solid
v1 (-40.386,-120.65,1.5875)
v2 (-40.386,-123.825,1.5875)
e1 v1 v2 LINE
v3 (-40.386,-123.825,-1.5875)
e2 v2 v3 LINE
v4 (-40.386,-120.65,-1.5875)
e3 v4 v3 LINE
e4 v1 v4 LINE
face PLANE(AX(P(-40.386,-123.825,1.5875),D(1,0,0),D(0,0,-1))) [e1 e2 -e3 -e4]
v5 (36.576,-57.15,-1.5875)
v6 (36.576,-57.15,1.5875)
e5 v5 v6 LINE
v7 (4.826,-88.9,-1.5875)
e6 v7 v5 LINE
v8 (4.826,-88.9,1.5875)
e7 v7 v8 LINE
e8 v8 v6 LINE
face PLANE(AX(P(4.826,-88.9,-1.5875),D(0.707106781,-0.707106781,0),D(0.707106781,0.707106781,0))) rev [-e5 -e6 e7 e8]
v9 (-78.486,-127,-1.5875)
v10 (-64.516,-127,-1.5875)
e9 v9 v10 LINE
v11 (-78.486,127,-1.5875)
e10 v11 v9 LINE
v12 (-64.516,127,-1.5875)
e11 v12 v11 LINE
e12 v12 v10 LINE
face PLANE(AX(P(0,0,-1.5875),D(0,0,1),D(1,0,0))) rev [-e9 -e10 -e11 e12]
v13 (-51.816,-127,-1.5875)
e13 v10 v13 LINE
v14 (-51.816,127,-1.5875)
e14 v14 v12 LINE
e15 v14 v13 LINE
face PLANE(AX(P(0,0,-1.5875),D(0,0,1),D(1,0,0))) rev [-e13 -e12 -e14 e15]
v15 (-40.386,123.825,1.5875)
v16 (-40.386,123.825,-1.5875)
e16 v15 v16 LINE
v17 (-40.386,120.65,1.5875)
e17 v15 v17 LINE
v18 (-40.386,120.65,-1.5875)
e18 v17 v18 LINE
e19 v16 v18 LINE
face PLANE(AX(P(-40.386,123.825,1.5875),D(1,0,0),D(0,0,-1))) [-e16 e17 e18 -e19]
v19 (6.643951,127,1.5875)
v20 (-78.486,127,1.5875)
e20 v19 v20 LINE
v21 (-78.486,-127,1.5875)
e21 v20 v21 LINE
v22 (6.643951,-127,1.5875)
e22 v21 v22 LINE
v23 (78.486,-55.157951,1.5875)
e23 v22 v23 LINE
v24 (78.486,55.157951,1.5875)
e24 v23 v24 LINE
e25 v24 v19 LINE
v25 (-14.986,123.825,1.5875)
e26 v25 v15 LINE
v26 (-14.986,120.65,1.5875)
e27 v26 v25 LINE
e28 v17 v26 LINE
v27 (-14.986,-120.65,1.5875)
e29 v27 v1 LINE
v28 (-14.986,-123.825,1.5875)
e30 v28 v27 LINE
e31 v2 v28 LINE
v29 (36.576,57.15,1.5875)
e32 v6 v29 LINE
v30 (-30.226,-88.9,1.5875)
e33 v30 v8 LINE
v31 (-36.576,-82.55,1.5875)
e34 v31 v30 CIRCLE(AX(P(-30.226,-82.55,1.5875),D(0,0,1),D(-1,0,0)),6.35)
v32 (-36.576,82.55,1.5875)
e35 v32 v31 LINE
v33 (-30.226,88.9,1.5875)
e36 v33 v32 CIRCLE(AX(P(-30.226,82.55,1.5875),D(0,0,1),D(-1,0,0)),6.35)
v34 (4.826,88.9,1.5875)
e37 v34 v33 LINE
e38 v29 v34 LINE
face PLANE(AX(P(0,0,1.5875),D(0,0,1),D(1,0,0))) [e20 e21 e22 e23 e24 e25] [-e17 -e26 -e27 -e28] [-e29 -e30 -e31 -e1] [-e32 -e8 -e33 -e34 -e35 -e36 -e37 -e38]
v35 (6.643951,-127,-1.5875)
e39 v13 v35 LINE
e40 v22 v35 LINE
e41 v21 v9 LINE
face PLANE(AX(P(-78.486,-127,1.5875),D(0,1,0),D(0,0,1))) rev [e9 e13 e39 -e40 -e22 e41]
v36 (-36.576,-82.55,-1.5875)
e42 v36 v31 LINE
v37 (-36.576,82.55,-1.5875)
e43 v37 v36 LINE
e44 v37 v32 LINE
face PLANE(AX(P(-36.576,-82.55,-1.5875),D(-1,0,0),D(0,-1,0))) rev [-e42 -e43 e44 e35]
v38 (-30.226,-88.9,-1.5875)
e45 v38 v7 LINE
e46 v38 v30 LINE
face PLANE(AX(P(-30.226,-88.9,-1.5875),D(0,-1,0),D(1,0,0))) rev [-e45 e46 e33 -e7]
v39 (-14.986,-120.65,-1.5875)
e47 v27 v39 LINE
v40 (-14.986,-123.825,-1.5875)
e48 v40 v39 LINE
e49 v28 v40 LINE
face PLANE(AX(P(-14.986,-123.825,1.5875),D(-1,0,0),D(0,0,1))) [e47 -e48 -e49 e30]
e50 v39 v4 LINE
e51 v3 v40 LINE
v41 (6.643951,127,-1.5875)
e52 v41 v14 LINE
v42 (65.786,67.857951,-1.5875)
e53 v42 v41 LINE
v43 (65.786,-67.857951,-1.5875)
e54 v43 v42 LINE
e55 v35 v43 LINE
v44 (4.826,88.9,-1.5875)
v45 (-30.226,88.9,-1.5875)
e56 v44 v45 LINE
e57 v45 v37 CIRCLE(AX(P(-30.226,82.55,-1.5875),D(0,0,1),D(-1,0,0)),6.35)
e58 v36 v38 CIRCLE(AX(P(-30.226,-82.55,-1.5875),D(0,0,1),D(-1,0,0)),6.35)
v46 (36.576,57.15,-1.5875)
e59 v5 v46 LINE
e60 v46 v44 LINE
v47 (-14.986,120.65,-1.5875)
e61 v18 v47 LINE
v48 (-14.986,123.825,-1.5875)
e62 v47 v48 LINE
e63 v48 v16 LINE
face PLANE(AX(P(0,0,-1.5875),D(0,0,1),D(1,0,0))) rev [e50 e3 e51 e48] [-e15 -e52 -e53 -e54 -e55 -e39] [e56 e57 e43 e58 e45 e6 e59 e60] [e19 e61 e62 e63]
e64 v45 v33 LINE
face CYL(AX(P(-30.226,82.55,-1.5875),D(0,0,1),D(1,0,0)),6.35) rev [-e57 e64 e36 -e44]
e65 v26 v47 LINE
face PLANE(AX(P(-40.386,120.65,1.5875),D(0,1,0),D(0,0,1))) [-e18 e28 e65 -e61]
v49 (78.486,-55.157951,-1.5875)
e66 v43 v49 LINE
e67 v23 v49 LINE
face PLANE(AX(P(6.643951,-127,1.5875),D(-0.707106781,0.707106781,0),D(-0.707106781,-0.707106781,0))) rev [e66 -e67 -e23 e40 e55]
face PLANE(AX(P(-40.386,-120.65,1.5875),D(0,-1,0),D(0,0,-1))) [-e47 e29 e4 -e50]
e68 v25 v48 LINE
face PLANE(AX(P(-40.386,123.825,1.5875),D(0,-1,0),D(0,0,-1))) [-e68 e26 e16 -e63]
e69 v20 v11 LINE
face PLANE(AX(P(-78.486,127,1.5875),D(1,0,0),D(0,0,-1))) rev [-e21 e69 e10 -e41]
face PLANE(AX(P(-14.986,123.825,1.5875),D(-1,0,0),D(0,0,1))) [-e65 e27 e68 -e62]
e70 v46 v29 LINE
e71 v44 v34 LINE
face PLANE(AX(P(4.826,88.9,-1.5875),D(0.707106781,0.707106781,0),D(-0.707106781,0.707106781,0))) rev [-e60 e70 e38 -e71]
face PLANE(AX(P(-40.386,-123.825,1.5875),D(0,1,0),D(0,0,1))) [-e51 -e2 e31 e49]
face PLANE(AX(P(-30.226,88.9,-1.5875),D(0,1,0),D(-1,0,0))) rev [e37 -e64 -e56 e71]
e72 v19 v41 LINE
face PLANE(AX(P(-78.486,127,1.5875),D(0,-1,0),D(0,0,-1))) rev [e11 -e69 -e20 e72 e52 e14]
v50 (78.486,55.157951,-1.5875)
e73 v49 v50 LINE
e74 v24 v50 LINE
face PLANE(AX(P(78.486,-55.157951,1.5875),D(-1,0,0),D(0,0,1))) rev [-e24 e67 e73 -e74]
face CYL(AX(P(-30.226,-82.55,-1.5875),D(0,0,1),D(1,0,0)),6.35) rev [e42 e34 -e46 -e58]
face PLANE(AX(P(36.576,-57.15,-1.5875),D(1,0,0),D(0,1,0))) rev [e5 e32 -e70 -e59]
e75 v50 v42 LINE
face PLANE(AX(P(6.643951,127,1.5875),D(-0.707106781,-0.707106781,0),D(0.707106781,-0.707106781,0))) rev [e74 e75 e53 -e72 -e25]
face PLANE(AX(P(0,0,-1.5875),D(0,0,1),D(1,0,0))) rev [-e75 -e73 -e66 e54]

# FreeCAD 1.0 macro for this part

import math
import FreeCAD as App
import Part
import Sketcher
Q = App.Units.Quantity

doc = App.newDocument("Part")
body = doc.addObject("PartDesign::Body", "Body")

# Sketch on XY plane
sketch1 = body.newObject("Sketcher::SketchObject", "Sketch")
sketch1.AttachmentSupport = (doc.getObject("XY_Plane"), [""])
sketch1.MapMode = "FlatFace"
sketch1.addGeometry(Part.LineSegment(App.Vector(6.6, 127, 0), App.Vector(-78.5, 127, 0)), False)
sketch1.addGeometry(Part.LineSegment(App.Vector(-78.5, 127, 0), App.Vector(-78.5, -127, 0)), False)
sketch1.addGeometry(Part.LineSegment(App.Vector(-78.5, -127, 0), App.Vector(6.6, -127, 0)), False)
sketch1.addGeometry(Part.LineSegment(App.Vector(6.6, -127, 0), App.Vector(78.5, -55.2, 0)), False)
sketch1.addGeometry(Part.LineSegment(App.Vector(78.5, -55.2, 0), App.Vector(78.5, 55.2, 0)), False)
sketch1.addGeometry(Part.LineSegment(App.Vector(78.5, 55.2, 0), App.Vector(6.6, 127, 0)), False)
sketch1.addGeometry(Part.LineSegment(App.Vector(-40.4, -123.8, 0), App.Vector(-40.4, -120.7, 0)), False)
sketch1.addGeometry(Part.LineSegment(App.Vector(-40.4, -120.7, 0), App.Vector(-15, -120.7, 0)), False)
sketch1.addGeometry(Part.LineSegment(App.Vector(-15, -120.7, 0), App.Vector(-15, -123.8, 0)), False)
sketch1.addGeometry(Part.LineSegment(App.Vector(-15, -123.8, 0), App.Vector(-40.4, -123.8, 0)), False)
sketch1.addGeometry(Part.LineSegment(App.Vector(-40.4, 120.7, 0), App.Vector(-40.4, 123.8, 0)), False)
sketch1.addGeometry(Part.LineSegment(App.Vector(-40.4, 123.8, 0), App.Vector(-15, 123.8, 0)), False)
sketch1.addGeometry(Part.LineSegment(App.Vector(-15, 123.8, 0), App.Vector(-15, 120.7, 0)), False)
sketch1.addGeometry(Part.LineSegment(App.Vector(-15, 120.7, 0), App.Vector(-40.4, 120.7, 0)), False)
sketch1.addConstraint(Sketcher.Constraint("Coincident", 0, 2, 1, 1))
sketch1.addConstraint(Sketcher.Constraint("Coincident", 1, 2, 2, 1))
sketch1.addConstraint(Sketcher.Constraint("Coincident", 2, 2, 3, 1))
sketch1.addConstraint(Sketcher.Constraint("Coincident", 3, 2, 4, 1))
sketch1.addConstraint(Sketcher.Constraint("Coincident", 4, 2, 5, 1))
sketch1.addConstraint(Sketcher.Constraint("Coincident", 5, 2, 0, 1))
sketch1.addConstraint(Sketcher.Constraint("Coincident", 6, 2, 7, 1))
sketch1.addConstraint(Sketcher.Constraint("Coincident", 7, 2, 8, 1))
sketch1.addConstraint(Sketcher.Constraint("Coincident", 8, 2, 9, 1))
sketch1.addConstraint(Sketcher.Constraint("Coincident", 9, 2, 6, 1))
sketch1.addConstraint(Sketcher.Constraint("Coincident", 10, 2, 11, 1))
sketch1.addConstraint(Sketcher.Constraint("Coincident", 11, 2, 12, 1))
sketch1.addConstraint(Sketcher.Constraint("Coincident", 12, 2, 13, 1))
sketch1.addConstraint(Sketcher.Constraint("Coincident", 13, 2, 10, 1))
sketch1.addConstraint(Sketcher.Constraint("Horizontal", 0))
sketch1.addConstraint(Sketcher.Constraint("Vertical", 1))
sketch1.addConstraint(Sketcher.Constraint("Horizontal", 2))
sketch1.addConstraint(Sketcher.Constraint("Vertical", 4))
sketch1.addConstraint(Sketcher.Constraint("Vertical", 6))
sketch1.addConstraint(Sketcher.Constraint("Horizontal", 7))
sketch1.addConstraint(Sketcher.Constraint("Vertical", 8))
sketch1.addConstraint(Sketcher.Constraint("Horizontal", 9))
sketch1.addConstraint(Sketcher.Constraint("Vertical", 10))
sketch1.addConstraint(Sketcher.Constraint("Horizontal", 11))
sketch1.addConstraint(Sketcher.Constraint("Vertical", 12))
sketch1.addConstraint(Sketcher.Constraint("Horizontal", 13))
sketch1.addConstraint(Sketcher.Constraint("Symmetric", 2, 2, 5, 2, -1))
sketch1.addConstraint(Sketcher.Constraint("Symmetric", 9, 2, 10, 2, -1))
sketch1.addConstraint(Sketcher.Constraint("Symmetric", 7, 2, 12, 2, -1))
sketch1.addConstraint(Sketcher.Constraint("Perpendicular", 3, 5))
sketch1.addConstraint(Sketcher.Constraint("Equal", 3, 5))
sketch1.addConstraint(Sketcher.Constraint("DistanceX", 7, 1, 7, 2, Q("1 in")))
sketch1.addConstraint(Sketcher.Constraint("DistanceY", 1, 2, 1, 1, Q("10 in")))
sketch1.addConstraint(Sketcher.Constraint("Distance", 3, Q("4 in")))
sketch1.addConstraint(Sketcher.Constraint("DistanceX", 1, 2, 6, 2, Q("1.5 in")))
sketch1.addConstraint(Sketcher.Constraint("DistanceY", 6, 1, 6, 2, Q("0.125 in")))
sketch1.addConstraint(Sketcher.Constraint("DistanceX", 0, 2, -1, 1, Q("3.09 in")))
sketch1.addConstraint(Sketcher.Constraint("DistanceX", -1, 1, 3, 2, Q("3.09 in")))
sketch1.addConstraint(Sketcher.Constraint("DistanceY", 6, 2, -1, 1, Q("4.75 in")))
pad1 = body.newObject("PartDesign::Pad", "Pad")
pad1.Profile = sketch1
pad1.Length = Q("0.125 in")
pad1.Midplane = True

# Sketch on XY plane
sketch2 = body.newObject("Sketcher::SketchObject", "Sketch001")
sketch2.AttachmentSupport = (doc.getObject("XY_Plane"), [""])
sketch2.MapMode = "FlatFace"
sketch2.AttachmentOffset = App.Placement(App.Vector(0, 0, 0.0625 * 25.4), App.Rotation())
sketch2.addGeometry(Part.LineSegment(App.Vector(37, 57, 0), App.Vector(5, 89, 0)), False)
sketch2.addGeometry(Part.LineSegment(App.Vector(5, 89, 0), App.Vector(-30, 89, 0)), False)
sketch2.addGeometry(Part.ArcOfCircle(Part.Circle(App.Vector(-30, 83, 0), App.Vector(0, 0, 1), 6), math.radians(90), math.radians(180)), False)
sketch2.addGeometry(Part.LineSegment(App.Vector(-37, 83, 0), App.Vector(-37, -83, 0)), False)
sketch2.addGeometry(Part.ArcOfCircle(Part.Circle(App.Vector(-30, -83, 0), App.Vector(0, 0, 1), 6), math.radians(180), math.radians(270)), False)
sketch2.addGeometry(Part.LineSegment(App.Vector(-30, -89, 0), App.Vector(5, -89, 0)), False)
sketch2.addGeometry(Part.LineSegment(App.Vector(5, -89, 0), App.Vector(37, -57, 0)), False)
sketch2.addGeometry(Part.LineSegment(App.Vector(37, -57, 0), App.Vector(37, 57, 0)), False)
sketch2.addConstraint(Sketcher.Constraint("Coincident", 0, 2, 1, 1))
sketch2.addConstraint(Sketcher.Constraint("Tangent", 1, 2, 2, 1))
sketch2.addConstraint(Sketcher.Constraint("Tangent", 2, 2, 3, 1))
sketch2.addConstraint(Sketcher.Constraint("Tangent", 3, 2, 4, 1))
sketch2.addConstraint(Sketcher.Constraint("Tangent", 4, 2, 5, 1))
sketch2.addConstraint(Sketcher.Constraint("Coincident", 5, 2, 6, 1))
sketch2.addConstraint(Sketcher.Constraint("Coincident", 6, 2, 7, 1))
sketch2.addConstraint(Sketcher.Constraint("Coincident", 7, 2, 0, 1))
sketch2.addConstraint(Sketcher.Constraint("Horizontal", 1))
sketch2.addConstraint(Sketcher.Constraint("Vertical", 3))
sketch2.addConstraint(Sketcher.Constraint("Horizontal", 5))
sketch2.addConstraint(Sketcher.Constraint("Vertical", 7))
sketch2.addConstraint(Sketcher.Constraint("Equal", 2, 4))
sketch2.addConstraint(Sketcher.Constraint("Symmetric", 0, 2, 5, 2, -1))
sketch2.addConstraint(Sketcher.Constraint("Perpendicular", 0, 6))
sketch2.addConstraint(Sketcher.Constraint("Equal", 0, 6))
sketch2.addConstraint(Sketcher.Constraint("Radius", 2, Q("0.25 in")))
sketch2.addConstraint(Sketcher.Constraint("DistanceY", 3, 2, 3, 1, Q("6.5 in")))
sketch2.addConstraint(Sketcher.Constraint("DistanceY", 7, 1, 7, 2, Q("4.5 in")))
sketch2.addConstraint(Sketcher.Constraint("DistanceX", 1, 2, 1, 1, Q("1.38 in")))
sketch2.addConstraint(Sketcher.Constraint("DistanceX", 2, 3, -1, 1, Q("1.19 in")))
pocket1 = body.newObject("PartDesign::Pocket", "Pocket")
pocket1.Profile = sketch2
pocket1.Type = "ThroughAll"

doc.recompute()
